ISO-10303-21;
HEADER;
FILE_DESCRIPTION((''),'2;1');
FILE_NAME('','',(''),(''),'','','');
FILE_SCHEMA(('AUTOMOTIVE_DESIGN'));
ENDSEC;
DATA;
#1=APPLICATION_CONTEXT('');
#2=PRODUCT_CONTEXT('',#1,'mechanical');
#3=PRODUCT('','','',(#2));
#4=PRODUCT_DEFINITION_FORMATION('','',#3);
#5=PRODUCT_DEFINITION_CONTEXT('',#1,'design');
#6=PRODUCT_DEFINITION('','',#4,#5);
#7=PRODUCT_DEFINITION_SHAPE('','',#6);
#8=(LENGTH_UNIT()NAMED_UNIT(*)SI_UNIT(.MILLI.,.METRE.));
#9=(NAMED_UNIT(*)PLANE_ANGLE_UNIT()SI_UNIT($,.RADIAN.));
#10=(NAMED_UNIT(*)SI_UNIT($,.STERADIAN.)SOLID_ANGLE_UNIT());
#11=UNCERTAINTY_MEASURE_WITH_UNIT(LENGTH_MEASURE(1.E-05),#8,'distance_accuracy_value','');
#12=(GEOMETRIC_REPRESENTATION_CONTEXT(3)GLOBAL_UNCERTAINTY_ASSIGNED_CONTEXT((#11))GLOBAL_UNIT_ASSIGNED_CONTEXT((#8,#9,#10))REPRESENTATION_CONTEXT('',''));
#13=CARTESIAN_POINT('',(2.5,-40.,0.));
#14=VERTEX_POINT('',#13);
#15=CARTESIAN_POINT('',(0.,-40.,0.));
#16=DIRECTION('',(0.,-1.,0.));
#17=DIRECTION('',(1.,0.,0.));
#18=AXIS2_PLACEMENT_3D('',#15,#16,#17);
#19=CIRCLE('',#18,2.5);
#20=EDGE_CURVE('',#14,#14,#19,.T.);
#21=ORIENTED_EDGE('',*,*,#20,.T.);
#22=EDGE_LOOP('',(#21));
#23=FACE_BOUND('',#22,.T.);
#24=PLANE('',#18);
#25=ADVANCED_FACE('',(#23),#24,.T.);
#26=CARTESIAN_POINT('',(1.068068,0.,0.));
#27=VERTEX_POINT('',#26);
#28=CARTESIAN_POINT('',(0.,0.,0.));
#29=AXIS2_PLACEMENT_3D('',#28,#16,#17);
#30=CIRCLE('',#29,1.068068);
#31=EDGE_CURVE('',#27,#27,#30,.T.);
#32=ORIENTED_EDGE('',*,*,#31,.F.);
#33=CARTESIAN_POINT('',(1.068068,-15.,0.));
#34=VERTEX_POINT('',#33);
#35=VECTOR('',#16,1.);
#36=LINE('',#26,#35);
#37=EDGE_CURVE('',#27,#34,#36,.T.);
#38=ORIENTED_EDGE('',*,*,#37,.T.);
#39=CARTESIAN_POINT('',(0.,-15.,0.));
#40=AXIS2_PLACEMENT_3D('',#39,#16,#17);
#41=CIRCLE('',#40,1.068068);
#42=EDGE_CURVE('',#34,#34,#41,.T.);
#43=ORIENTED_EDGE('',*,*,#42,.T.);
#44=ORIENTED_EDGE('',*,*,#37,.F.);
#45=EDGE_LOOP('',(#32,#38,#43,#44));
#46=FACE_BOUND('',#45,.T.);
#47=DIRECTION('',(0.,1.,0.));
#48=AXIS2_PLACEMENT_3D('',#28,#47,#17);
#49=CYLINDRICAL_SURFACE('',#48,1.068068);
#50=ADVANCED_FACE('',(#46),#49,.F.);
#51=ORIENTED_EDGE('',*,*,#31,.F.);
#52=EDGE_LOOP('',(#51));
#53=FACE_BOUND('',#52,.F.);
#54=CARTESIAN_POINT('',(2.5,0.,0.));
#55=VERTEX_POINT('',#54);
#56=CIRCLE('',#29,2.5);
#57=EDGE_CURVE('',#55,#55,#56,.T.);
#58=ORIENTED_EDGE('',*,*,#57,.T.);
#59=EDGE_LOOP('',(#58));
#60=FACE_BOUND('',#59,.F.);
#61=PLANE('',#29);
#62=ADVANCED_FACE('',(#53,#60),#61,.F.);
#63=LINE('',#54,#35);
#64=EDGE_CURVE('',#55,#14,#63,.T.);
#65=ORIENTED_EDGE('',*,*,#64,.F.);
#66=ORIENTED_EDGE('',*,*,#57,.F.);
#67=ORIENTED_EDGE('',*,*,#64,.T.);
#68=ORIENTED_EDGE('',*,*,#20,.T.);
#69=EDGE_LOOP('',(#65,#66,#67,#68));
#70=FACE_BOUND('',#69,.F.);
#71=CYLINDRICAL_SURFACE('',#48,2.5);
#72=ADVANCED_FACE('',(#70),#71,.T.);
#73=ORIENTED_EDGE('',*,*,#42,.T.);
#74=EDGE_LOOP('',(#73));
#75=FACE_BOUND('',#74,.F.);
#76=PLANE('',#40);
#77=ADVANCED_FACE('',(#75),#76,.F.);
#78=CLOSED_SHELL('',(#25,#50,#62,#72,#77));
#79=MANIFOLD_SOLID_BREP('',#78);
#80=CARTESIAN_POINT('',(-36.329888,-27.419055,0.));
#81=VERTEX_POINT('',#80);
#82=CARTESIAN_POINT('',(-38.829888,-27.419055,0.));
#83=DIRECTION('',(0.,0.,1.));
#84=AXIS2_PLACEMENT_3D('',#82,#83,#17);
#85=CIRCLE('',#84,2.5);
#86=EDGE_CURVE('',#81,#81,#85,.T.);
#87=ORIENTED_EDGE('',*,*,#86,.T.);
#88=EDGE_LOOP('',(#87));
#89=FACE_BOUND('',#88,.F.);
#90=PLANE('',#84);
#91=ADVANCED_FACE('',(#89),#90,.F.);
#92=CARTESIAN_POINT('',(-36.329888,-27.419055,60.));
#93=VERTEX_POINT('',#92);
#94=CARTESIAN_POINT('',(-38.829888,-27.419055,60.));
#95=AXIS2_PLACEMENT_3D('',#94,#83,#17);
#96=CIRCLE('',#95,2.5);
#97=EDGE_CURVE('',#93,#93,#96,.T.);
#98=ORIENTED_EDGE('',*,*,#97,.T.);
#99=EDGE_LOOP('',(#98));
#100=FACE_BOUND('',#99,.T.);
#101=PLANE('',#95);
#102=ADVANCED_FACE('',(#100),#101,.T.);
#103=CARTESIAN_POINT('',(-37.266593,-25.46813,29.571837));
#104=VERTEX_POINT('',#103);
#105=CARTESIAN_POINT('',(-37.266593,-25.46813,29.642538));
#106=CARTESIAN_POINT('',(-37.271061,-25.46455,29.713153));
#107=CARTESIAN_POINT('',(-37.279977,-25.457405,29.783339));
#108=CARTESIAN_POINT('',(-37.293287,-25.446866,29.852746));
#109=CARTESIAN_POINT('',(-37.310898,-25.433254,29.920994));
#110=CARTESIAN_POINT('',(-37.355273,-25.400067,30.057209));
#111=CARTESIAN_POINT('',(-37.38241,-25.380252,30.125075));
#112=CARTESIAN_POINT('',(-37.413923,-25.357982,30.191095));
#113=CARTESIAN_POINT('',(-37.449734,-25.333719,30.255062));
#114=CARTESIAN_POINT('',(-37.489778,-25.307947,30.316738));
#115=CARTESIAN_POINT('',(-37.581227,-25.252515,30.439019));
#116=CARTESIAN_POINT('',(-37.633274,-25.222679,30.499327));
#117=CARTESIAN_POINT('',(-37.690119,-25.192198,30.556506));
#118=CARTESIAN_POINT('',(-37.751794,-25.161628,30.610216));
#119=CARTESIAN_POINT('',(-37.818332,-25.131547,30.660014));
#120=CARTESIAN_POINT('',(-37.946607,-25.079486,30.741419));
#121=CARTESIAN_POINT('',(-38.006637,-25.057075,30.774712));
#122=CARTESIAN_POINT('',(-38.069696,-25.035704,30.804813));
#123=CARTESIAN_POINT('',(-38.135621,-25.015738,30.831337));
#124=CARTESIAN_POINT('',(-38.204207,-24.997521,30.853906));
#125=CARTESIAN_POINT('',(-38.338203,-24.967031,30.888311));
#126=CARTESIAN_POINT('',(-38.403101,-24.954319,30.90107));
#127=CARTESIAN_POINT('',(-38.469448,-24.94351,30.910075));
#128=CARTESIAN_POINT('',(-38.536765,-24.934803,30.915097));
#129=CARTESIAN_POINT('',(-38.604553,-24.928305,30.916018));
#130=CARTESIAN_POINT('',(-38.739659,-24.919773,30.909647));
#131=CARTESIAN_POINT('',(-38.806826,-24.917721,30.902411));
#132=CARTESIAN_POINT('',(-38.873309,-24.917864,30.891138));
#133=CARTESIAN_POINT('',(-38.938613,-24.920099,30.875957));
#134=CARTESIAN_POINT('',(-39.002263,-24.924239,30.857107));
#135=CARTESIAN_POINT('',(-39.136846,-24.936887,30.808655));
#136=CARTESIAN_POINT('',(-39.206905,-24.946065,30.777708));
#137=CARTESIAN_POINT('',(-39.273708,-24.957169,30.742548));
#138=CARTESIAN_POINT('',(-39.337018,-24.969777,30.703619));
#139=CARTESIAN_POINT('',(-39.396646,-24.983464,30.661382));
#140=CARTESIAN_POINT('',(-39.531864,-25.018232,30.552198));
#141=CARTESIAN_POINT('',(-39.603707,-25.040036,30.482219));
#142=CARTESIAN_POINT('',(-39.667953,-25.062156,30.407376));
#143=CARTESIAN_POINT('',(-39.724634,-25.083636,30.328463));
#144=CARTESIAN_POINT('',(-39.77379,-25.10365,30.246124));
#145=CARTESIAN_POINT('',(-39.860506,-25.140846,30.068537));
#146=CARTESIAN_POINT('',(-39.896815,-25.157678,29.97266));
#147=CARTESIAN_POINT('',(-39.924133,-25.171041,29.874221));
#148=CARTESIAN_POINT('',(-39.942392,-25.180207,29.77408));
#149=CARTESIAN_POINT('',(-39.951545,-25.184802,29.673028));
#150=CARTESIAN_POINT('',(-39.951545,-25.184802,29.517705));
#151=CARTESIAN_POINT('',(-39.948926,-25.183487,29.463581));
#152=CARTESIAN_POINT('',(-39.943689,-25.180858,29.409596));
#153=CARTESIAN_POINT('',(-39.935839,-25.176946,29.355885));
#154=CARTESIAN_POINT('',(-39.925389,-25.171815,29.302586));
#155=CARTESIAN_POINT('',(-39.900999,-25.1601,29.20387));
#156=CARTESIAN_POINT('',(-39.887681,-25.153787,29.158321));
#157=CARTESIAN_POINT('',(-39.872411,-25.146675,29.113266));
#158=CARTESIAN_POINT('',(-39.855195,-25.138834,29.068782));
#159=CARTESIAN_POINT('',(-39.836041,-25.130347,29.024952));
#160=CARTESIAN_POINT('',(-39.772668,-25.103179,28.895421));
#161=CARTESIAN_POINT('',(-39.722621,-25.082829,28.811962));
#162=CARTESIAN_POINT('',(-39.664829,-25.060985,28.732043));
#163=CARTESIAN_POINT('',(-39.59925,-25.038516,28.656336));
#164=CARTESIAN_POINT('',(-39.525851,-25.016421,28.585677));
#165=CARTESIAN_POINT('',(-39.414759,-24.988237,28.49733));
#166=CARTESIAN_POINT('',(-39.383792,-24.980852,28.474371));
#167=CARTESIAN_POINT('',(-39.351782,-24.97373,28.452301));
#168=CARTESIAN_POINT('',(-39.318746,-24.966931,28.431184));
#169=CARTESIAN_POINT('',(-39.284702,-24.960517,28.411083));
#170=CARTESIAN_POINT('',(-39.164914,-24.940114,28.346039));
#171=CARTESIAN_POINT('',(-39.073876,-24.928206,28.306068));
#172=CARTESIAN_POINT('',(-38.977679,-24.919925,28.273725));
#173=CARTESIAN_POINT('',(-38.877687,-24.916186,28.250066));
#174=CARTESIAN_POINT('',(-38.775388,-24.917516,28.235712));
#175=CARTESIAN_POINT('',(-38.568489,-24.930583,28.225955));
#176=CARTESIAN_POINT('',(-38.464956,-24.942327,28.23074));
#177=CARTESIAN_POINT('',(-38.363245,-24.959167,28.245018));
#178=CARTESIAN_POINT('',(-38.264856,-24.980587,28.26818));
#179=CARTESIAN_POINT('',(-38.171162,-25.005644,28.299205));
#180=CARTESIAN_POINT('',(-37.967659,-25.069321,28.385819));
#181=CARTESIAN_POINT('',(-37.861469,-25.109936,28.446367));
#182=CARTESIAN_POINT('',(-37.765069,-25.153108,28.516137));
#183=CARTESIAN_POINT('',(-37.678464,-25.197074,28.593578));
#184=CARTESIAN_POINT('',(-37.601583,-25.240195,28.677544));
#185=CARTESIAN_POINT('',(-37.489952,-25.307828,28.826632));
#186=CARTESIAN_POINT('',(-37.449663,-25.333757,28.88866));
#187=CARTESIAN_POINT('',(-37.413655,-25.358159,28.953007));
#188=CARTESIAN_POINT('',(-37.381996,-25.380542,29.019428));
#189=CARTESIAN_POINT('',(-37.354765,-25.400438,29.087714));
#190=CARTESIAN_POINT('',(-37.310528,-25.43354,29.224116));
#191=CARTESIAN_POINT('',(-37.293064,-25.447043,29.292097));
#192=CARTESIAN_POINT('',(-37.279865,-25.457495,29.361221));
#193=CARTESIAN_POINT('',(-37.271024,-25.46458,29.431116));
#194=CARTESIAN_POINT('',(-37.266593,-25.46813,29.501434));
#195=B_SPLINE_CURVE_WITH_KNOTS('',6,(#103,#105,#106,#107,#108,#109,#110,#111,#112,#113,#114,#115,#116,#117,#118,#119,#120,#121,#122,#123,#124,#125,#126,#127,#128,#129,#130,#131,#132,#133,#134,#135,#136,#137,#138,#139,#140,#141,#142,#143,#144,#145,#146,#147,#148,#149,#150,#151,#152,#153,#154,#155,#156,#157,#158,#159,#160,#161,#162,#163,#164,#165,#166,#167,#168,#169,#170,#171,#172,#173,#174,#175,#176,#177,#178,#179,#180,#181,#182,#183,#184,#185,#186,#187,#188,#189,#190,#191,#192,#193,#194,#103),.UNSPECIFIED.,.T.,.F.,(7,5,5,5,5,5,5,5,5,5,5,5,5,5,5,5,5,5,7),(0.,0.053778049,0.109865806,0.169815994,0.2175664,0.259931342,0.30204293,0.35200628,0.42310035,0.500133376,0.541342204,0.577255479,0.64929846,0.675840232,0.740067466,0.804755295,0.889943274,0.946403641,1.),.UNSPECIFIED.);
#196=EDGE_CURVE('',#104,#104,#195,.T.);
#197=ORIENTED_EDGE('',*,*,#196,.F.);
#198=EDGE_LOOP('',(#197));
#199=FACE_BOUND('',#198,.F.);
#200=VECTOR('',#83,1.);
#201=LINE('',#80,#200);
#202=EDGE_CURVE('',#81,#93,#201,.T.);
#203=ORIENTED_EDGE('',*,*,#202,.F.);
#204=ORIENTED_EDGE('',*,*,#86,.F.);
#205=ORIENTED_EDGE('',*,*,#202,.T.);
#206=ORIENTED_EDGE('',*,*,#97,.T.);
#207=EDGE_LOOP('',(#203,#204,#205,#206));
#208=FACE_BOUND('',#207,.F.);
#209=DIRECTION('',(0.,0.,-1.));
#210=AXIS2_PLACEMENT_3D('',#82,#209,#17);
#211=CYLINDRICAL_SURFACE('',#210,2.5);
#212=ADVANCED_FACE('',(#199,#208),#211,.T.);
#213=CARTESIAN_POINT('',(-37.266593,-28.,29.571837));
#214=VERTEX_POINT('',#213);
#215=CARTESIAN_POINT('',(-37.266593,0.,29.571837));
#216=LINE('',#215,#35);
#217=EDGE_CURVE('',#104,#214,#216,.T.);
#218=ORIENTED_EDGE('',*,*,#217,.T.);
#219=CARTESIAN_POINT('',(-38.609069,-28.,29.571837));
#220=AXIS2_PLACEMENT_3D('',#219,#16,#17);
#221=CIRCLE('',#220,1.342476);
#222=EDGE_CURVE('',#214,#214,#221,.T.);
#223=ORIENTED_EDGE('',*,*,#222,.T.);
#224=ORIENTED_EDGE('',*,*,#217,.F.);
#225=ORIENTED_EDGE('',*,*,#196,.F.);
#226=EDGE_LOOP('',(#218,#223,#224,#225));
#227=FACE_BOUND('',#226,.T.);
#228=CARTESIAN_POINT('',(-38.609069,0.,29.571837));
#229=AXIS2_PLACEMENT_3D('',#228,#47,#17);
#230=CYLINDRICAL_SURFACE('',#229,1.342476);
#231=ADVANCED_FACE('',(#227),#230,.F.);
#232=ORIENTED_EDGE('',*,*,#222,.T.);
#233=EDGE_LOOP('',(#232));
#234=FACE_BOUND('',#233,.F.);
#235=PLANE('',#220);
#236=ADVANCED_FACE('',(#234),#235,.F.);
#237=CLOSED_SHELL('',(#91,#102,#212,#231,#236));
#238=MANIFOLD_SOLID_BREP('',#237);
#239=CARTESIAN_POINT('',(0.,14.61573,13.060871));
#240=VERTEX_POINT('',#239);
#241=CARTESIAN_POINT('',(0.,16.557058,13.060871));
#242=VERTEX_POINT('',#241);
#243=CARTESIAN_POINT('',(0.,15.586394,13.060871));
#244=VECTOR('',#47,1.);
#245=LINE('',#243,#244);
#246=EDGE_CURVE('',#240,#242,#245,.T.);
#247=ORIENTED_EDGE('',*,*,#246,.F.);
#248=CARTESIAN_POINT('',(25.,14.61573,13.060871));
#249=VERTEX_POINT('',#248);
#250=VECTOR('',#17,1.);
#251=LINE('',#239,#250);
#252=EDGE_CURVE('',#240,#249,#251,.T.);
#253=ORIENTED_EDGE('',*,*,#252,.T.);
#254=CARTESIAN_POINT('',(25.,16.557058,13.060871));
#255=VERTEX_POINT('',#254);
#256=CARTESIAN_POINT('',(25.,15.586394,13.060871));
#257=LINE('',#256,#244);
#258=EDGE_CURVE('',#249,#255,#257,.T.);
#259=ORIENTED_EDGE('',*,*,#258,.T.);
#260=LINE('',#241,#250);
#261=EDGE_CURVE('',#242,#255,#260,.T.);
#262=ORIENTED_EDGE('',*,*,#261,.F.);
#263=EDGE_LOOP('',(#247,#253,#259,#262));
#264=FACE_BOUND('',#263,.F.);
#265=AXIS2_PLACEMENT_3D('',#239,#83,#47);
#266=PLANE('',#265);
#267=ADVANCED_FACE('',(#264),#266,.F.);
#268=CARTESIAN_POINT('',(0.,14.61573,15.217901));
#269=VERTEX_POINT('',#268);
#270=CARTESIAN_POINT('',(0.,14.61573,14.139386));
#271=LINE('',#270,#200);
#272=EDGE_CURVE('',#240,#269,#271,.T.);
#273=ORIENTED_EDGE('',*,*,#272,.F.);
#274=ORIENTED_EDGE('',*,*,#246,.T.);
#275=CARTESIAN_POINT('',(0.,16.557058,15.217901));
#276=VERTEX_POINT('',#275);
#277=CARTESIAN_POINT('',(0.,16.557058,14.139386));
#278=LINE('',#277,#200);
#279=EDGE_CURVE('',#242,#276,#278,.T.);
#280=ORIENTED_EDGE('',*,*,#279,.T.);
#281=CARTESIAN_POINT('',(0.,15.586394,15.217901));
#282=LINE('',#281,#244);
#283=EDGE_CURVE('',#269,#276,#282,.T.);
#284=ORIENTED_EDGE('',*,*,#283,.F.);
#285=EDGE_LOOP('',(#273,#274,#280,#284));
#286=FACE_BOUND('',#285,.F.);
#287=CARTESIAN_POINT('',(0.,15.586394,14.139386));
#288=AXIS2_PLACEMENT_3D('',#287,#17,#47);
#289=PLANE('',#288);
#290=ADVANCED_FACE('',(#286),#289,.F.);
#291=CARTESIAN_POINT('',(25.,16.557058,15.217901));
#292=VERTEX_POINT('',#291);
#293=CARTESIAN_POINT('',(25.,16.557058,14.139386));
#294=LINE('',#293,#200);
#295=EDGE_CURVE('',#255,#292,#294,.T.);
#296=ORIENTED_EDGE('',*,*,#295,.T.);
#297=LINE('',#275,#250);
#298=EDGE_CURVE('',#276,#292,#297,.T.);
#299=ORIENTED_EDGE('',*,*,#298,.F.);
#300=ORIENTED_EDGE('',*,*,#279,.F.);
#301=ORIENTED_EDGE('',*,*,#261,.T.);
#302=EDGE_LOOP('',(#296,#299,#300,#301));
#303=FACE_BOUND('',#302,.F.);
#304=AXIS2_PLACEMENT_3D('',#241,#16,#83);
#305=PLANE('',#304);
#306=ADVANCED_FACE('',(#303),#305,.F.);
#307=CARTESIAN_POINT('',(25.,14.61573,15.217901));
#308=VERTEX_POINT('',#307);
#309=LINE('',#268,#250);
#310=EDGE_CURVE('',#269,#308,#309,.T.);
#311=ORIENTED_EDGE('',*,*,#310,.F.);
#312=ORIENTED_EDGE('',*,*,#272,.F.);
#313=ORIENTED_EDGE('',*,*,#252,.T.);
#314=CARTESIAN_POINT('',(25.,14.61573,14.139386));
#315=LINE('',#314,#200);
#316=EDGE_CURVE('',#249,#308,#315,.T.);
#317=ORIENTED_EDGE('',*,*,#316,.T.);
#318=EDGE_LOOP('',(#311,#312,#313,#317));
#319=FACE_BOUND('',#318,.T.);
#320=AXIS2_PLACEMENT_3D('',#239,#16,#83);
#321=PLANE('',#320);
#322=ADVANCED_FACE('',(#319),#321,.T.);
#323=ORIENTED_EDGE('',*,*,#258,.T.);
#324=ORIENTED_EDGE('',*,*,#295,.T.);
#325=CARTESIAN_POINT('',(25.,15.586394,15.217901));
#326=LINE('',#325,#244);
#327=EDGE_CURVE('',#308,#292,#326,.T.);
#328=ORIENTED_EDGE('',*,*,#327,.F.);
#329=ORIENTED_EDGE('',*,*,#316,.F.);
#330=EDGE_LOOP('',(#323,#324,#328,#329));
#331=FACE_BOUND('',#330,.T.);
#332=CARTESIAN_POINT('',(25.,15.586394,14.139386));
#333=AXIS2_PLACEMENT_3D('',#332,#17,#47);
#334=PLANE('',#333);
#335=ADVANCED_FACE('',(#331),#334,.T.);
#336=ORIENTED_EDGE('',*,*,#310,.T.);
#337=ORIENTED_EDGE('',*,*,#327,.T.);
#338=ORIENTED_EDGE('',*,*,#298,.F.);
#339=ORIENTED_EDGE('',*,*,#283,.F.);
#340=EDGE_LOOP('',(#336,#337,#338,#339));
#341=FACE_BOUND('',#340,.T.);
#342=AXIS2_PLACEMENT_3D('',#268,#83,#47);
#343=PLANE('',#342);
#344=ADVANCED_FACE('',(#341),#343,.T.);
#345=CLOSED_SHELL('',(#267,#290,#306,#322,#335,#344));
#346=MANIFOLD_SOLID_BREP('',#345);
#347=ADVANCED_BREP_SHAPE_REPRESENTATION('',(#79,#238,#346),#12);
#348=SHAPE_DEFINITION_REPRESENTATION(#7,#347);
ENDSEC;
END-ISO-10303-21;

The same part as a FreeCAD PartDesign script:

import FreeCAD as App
import Part
import Sketcher
from FreeCAD import Vector

doc = App.newDocument("Part")
body = doc.addObject("PartDesign::Body", "Body")

# Sketch on XZ plane
sketch1 = body.newObject("Sketcher::SketchObject", "Sketch")
sketch1.AttachmentSupport = (doc.getObject("XZ_Plane"), [""])
sketch1.MapMode = "FlatFace"
sketch1.addGeometry(Part.Circle(Vector(0, 0, 0), Vector(0, 0, 1), 2.5), False)
sketch1.addConstraint(Sketcher.Constraint("Coincident", 0, 3, -1, 1))
sketch1.addConstraint(Sketcher.Constraint("Diameter", 0, 5.0))
pad1 = body.newObject("PartDesign::Pad", "Pad")
pad1.Profile = sketch1
pad1.Length = 40

# Sketch on XZ plane
sketch2 = body.newObject("Sketcher::SketchObject", "Sketch001")
sketch2.AttachmentSupport = (doc.getObject("XZ_Plane"), [""])
sketch2.MapMode = "FlatFace"
sketch2.addGeometry(Part.Circle(Vector(0, 0, 0), Vector(0, 0, 1), 1.1), False)
sketch2.addConstraint(Sketcher.Constraint("Coincident", 0, 3, -1, 1))
sketch2.addConstraint(Sketcher.Constraint("Diameter", 0, 2.136136))
pocket1 = body.newObject("PartDesign::Pocket", "Pocket")
pocket1.Profile = sketch2
pocket1.Length = 15
pocket1.Reversed = True
body2 = doc.addObject("PartDesign::Body", "Body001")

# Sketch on XY plane
sketch3 = body2.newObject("Sketcher::SketchObject", "Sketch002")
sketch3.AttachmentSupport = (doc.getObject("XY_Plane001"), [""])
sketch3.MapMode = "FlatFace"
sketch3.addGeometry(Part.Circle(Vector(-38.8, -27.4, 0), Vector(0, 0, 1), 2.5), False)
sketch3.addConstraint(Sketcher.Constraint("Diameter", 0, 5.0))
sketch3.addConstraint(Sketcher.Constraint("DistanceX", 0, 3, -1, 1, 38.829888))
sketch3.addConstraint(Sketcher.Constraint("DistanceY", 0, 3, -1, 1, 27.419055))
pad2 = body2.newObject("PartDesign::Pad", "Pad001")
pad2.Profile = sketch3
pad2.Length = 60

# Sketch on XZ plane
sketch4 = body2.newObject("Sketcher::SketchObject", "Sketch003")
sketch4.AttachmentSupport = (doc.getObject("XZ_Plane001"), [""])
sketch4.MapMode = "FlatFace"
sketch4.addGeometry(Part.Circle(Vector(-38.6, 29.6, 0), Vector(0, 0, 1), 1.3), False)
sketch4.addConstraint(Sketcher.Constraint("Diameter", 0, 2.684952))
sketch4.addConstraint(Sketcher.Constraint("DistanceX", 0, 3, -1, 1, 38.609069))
sketch4.addConstraint(Sketcher.Constraint("DistanceY", -1, 1, 0, 3, 29.571837))
pocket2 = body2.newObject("PartDesign::Pocket", "Pocket001")
pocket2.Profile = sketch4
pocket2.Length = 28
pocket2.Reversed = True
body3 = doc.addObject("PartDesign::Body", "Body002")

# Sketch on YZ plane
sketch5 = body3.newObject("Sketcher::SketchObject", "Sketch004")
sketch5.AttachmentSupport = (doc.getObject("YZ_Plane002"), [""])
sketch5.MapMode = "FlatFace"
sketch5.addGeometry(Part.LineSegment(Vector(14.6, 15.2, 0), Vector(14.6, 13.1, 0)), False)
sketch5.addGeometry(Part.LineSegment(Vector(14.6, 13.1, 0), Vector(16.6, 13.1, 0)), False)
sketch5.addGeometry(Part.LineSegment(Vector(16.6, 13.1, 0), Vector(16.6, 15.2, 0)), False)
sketch5.addGeometry(Part.LineSegment(Vector(16.6, 15.2, 0), Vector(14.6, 15.2, 0)), False)
sketch5.addConstraint(Sketcher.Constraint("Coincident", 0, 2, 1, 1))
sketch5.addConstraint(Sketcher.Constraint("Coincident", 1, 2, 2, 1))
sketch5.addConstraint(Sketcher.Constraint("Coincident", 2, 2, 3, 1))
sketch5.addConstraint(Sketcher.Constraint("Coincident", 3, 2, 0, 1))
sketch5.addConstraint(Sketcher.Constraint("Vertical", 0))
sketch5.addConstraint(Sketcher.Constraint("Horizontal", 1))
sketch5.addConstraint(Sketcher.Constraint("Vertical", 2))
sketch5.addConstraint(Sketcher.Constraint("Horizontal", 3))
sketch5.addConstraint(Sketcher.Constraint("DistanceX", 1, 1, 1, 2, 1.941328))
sketch5.addConstraint(Sketcher.Constraint("DistanceY", 0, 2, 0, 1, 2.15703))
sketch5.addConstraint(Sketcher.Constraint("DistanceY", -1, 1, 2, 2, 15.217901))
sketch5.addConstraint(Sketcher.Constraint("DistanceX", -1, 1, 0, 2, 14.61573))
pad3 = body3.newObject("PartDesign::Pad", "Pad002")
pad3.Profile = sketch5
pad3.Length = 25

doc.recompute()
